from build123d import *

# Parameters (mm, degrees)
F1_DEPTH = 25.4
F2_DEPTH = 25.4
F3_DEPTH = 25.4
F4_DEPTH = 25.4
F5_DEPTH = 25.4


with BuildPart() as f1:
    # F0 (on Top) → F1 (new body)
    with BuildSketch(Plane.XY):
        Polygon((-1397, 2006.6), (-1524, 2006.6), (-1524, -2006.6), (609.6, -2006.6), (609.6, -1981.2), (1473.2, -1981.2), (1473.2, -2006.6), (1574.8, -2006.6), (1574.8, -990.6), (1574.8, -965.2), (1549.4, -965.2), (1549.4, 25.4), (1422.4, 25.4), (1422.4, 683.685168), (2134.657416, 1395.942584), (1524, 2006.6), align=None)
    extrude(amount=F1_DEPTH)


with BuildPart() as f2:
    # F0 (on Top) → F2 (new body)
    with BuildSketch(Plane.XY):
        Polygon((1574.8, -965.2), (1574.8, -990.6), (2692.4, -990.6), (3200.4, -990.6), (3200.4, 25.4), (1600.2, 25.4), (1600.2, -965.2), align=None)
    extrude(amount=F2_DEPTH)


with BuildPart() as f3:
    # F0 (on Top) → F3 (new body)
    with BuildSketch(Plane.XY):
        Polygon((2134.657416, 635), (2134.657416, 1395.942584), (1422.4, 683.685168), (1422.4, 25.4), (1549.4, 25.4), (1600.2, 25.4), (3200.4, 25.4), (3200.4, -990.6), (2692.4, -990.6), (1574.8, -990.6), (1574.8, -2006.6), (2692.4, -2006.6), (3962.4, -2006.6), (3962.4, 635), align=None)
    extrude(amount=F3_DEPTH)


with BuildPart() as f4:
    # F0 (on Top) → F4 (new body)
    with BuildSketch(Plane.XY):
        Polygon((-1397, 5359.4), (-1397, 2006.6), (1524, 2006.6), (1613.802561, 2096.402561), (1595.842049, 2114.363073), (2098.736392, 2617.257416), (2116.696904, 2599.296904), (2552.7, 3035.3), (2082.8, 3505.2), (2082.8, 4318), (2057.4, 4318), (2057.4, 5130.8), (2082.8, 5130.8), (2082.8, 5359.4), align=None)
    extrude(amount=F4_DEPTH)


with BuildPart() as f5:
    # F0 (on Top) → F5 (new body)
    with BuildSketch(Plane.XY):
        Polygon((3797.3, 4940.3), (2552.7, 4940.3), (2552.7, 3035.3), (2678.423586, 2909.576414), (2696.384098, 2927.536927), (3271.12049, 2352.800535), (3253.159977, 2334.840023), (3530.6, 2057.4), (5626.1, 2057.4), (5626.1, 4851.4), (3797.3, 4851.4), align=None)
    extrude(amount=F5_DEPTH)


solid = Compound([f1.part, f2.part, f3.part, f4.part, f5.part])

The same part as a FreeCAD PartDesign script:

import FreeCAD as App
import Part
import Sketcher
from FreeCAD import Vector
Q = App.Units.Quantity

doc = App.newDocument("Part")
params = doc.addObject("Spreadsheet::Sheet", "Params")
for row, (alias, value) in enumerate([
    ("sketch1_width", "84 in"),
    ("sketch1_width2", "34 in"),
    ("sketch1_width3", "4 in"),
    ("sketch1_width4", "1 in"),
    ("sketch1_width5", "5 in"),
    ("pad1_length", "1 in"),
    ("sketch2_width", "64 in"),
    ("sketch2_width2", "63 in"),
    ("sketch2_height", "40 in"),
    ("pad2_length", "1 in"),
    ("sketch3_width", "70 in"),
    ("sketch3_width2", "64 in"),
    ("sketch3_width3", "94 in"),
    ("sketch3_height", "40 in"),
    ("sketch3_height2", "104 in"),
    ("pad3_length", "1 in"),
    ("sketch4_width", "115 in"),
    ("sketch4_width2", "1 in"),
    ("sketch4_width3", "137 in"),
    ("sketch4_height", "132 in"),
    ("sketch4_height2", "32 in"),
    ("pad4_length", "1 in"),
    ("sketch5_width", "49 in"),
    ("sketch5_width2", "72 in"),
    ("sketch5_height", "75 in"),
    ("sketch5_height2", "110 in"),
    ("sketch5_length", "7 in"),
    ("pad5_length", "1 in"),
], start=1):
    params.set(f"A{row}", alias)
    params.set(f"B{row}", "=" + value)
    params.setAlias(f"B{row}", alias)

body = doc.addObject("PartDesign::Body", "Body")

# Sketch on XY plane
sketch1 = doc.addObject("Sketcher::SketchObject", "Sketch")
body.addObject(sketch1)
sketch1.AttachmentSupport = (doc.XY_Plane, [""])
sketch1.MapMode = "FlatFace"
sketch1.addGeometry(Part.LineSegment(Vector(-1524, 2007, 0), Vector(-1524, -2007, 0)), False)
sketch1.addGeometry(Part.LineSegment(Vector(-1524, -2007, 0), Vector(610, -2007, 0)), False)
sketch1.addGeometry(Part.LineSegment(Vector(610, -2007, 0), Vector(610, -1981, 0)), False)
sketch1.addGeometry(Part.LineSegment(Vector(610, -1981, 0), Vector(1473, -1981, 0)), False)
sketch1.addGeometry(Part.LineSegment(Vector(1473, -1981, 0), Vector(1473, -2007, 0)), False)
sketch1.addGeometry(Part.LineSegment(Vector(1473, -2007, 0), Vector(1575, -2007, 0)), False)
sketch1.addGeometry(Part.LineSegment(Vector(1575, -2007, 0), Vector(1575, -965, 0)), False)
sketch1.addGeometry(Part.LineSegment(Vector(1575, -965, 0), Vector(1549, -965, 0)), False)
sketch1.addGeometry(Part.LineSegment(Vector(1549, -965, 0), Vector(1549, 25, 0)), False)
sketch1.addGeometry(Part.LineSegment(Vector(1549, 25, 0), Vector(1422, 25, 0)), False)
sketch1.addGeometry(Part.LineSegment(Vector(1422, 25, 0), Vector(1422, 684, 0)), False)
sketch1.addGeometry(Part.LineSegment(Vector(1422, 684, 0), Vector(2135, 1396, 0)), False)
sketch1.addGeometry(Part.LineSegment(Vector(2135, 1396, 0), Vector(1524, 2007, 0)), False)
sketch1.addGeometry(Part.LineSegment(Vector(1524, 2007, 0), Vector(-1524, 2007, 0)), False)
sketch1.addConstraint(Sketcher.Constraint("Coincident", 0, 2, 1, 1))
sketch1.addConstraint(Sketcher.Constraint("Coincident", 1, 2, 2, 1))
sketch1.addConstraint(Sketcher.Constraint("Coincident", 2, 2, 3, 1))
sketch1.addConstraint(Sketcher.Constraint("Coincident", 3, 2, 4, 1))
sketch1.addConstraint(Sketcher.Constraint("Coincident", 4, 2, 5, 1))
sketch1.addConstraint(Sketcher.Constraint("Coincident", 5, 2, 6, 1))
sketch1.addConstraint(Sketcher.Constraint("Coincident", 6, 2, 7, 1))
sketch1.addConstraint(Sketcher.Constraint("Coincident", 7, 2, 8, 1))
sketch1.addConstraint(Sketcher.Constraint("Coincident", 8, 2, 9, 1))
sketch1.addConstraint(Sketcher.Constraint("Coincident", 9, 2, 10, 1))
sketch1.addConstraint(Sketcher.Constraint("Coincident", 10, 2, 11, 1))
sketch1.addConstraint(Sketcher.Constraint("Coincident", 11, 2, 12, 1))
sketch1.addConstraint(Sketcher.Constraint("Coincident", 12, 2, 13, 1))
sketch1.addConstraint(Sketcher.Constraint("Coincident", 13, 2, 0, 1))
sketch1.addConstraint(Sketcher.Constraint("Vertical", 0))
sketch1.addConstraint(Sketcher.Constraint("Horizontal", 1))
sketch1.addConstraint(Sketcher.Constraint("Vertical", 2))
sketch1.addConstraint(Sketcher.Constraint("Horizontal", 3))
sketch1.addConstraint(Sketcher.Constraint("Vertical", 4))
sketch1.addConstraint(Sketcher.Constraint("Horizontal", 5))
sketch1.addConstraint(Sketcher.Constraint("Vertical", 6))
sketch1.addConstraint(Sketcher.Constraint("Horizontal", 7))
sketch1.addConstraint(Sketcher.Constraint("Vertical", 8))
sketch1.addConstraint(Sketcher.Constraint("Horizontal", 9))
sketch1.addConstraint(Sketcher.Constraint("Vertical", 10))
sketch1.addConstraint(Sketcher.Constraint("Horizontal", 13))
sketch1.addConstraint(Sketcher.Constraint("Symmetric", 0, 2, 12, 2, -1, 1))
sketch1.addConstraint(Sketcher.Constraint("Perpendicular", 11, 12))
sketch1.addConstraint(Sketcher.Constraint("Horizontal", 1, 2, 4, 2))
sketch1.addConstraint(Sketcher.Constraint("Equal", 7, 2))
sketch1.addConstraint(Sketcher.Constraint("DistanceX", 1, 1, 1, 2, Q("84 in")))
sketch1.addConstraint(Sketcher.Constraint("DistanceX", 3, 1, 3, 2, Q("34 in")))
sketch1.addConstraint(Sketcher.Constraint("DistanceX", 5, 1, 5, 2, Q("4 in")))
sketch1.addConstraint(Sketcher.Constraint("DistanceX", 7, 2, 7, 1, Q("1 in")))
sketch1.addConstraint(Sketcher.Constraint("DistanceX", 9, 2, 9, 1, Q("5 in")))
sketch1.addConstraint(Sketcher.Constraint("DistanceX", 13, 2, 13, 1, Q("120 in")))
sketch1.addConstraint(Sketcher.Constraint("DistanceY", 0, 2, 0, 1, Q("158 in")))
sketch1.addConstraint(Sketcher.Constraint("DistanceY", 6, 1, 6, 2, Q("41 in")))
sketch1.addConstraint(Sketcher.Constraint("DistanceY", 8, 1, 8, 2, Q("39 in")))
sketch1.addConstraint(Sketcher.Constraint("Distance", 12, Q("34 in")))
sketch1.addConstraint(Sketcher.Constraint("Angle", 11, Q("45 deg")))
sketch1.setExpression("Constraints[30]", "Params.sketch1_width")
sketch1.setExpression("Constraints[31]", "Params.sketch1_width2")
sketch1.setExpression("Constraints[32]", "Params.sketch1_width3")
sketch1.setExpression("Constraints[33]", "Params.sketch1_width4")
sketch1.setExpression("Constraints[34]", "Params.sketch1_width5")
pad1 = doc.addObject("PartDesign::Pad", "Pad")
body.addObject(pad1)
pad1.Profile = sketch1
pad1.setExpression("Length", "Params.pad1_length")
body2 = doc.addObject("PartDesign::Body", "Body001")

# Sketch on XY plane
sketch2 = doc.addObject("Sketcher::SketchObject", "Sketch001")
body2.addObject(sketch2)
sketch2.AttachmentSupport = (doc.getObject("XY_Plane001"), [""])
sketch2.MapMode = "FlatFace"
sketch2.addGeometry(Part.LineSegment(Vector(1575, -965, 0), Vector(1575, -991, 0)), False)
sketch2.addGeometry(Part.LineSegment(Vector(1575, -991, 0), Vector(3200, -991, 0)), False)
sketch2.addGeometry(Part.LineSegment(Vector(3200, -991, 0), Vector(3200, 25, 0)), False)
sketch2.addGeometry(Part.LineSegment(Vector(3200, 25, 0), Vector(1600, 25, 0)), False)
sketch2.addGeometry(Part.LineSegment(Vector(1600, 25, 0), Vector(1600, -965, 0)), False)
sketch2.addGeometry(Part.LineSegment(Vector(1600, -965, 0), Vector(1575, -965, 0)), False)
sketch2.addConstraint(Sketcher.Constraint("Coincident", 0, 2, 1, 1))
sketch2.addConstraint(Sketcher.Constraint("Coincident", 1, 2, 2, 1))
sketch2.addConstraint(Sketcher.Constraint("Coincident", 2, 2, 3, 1))
sketch2.addConstraint(Sketcher.Constraint("Coincident", 3, 2, 4, 1))
sketch2.addConstraint(Sketcher.Constraint("Coincident", 4, 2, 5, 1))
sketch2.addConstraint(Sketcher.Constraint("Coincident", 5, 2, 0, 1))
sketch2.addConstraint(Sketcher.Constraint("Vertical", 0))
sketch2.addConstraint(Sketcher.Constraint("Horizontal", 1))
sketch2.addConstraint(Sketcher.Constraint("Vertical", 2))
sketch2.addConstraint(Sketcher.Constraint("Horizontal", 3))
sketch2.addConstraint(Sketcher.Constraint("Vertical", 4))
sketch2.addConstraint(Sketcher.Constraint("Horizontal", 5))
sketch2.addConstraint(Sketcher.Constraint("Equal", 5, 0))
sketch2.addConstraint(Sketcher.Constraint("DistanceX", 1, 1, 1, 2, Q("64 in")))
sketch2.addConstraint(Sketcher.Constraint("DistanceX", 3, 2, 3, 1, Q("63 in")))
sketch2.addConstraint(Sketcher.Constraint("DistanceY", 2, 1, 2, 2, Q("40 in")))
sketch2.addConstraint(Sketcher.Constraint("DistanceX", -1, 1, 0, 2, Q("62 in")))
sketch2.addConstraint(Sketcher.Constraint("DistanceY", 0, 2, -1, 1, Q("39 in")))
sketch2.setExpression("Constraints[13]", "Params.sketch2_width")
sketch2.setExpression("Constraints[14]", "Params.sketch2_width2")
sketch2.setExpression("Constraints[15]", "Params.sketch2_height")
pad2 = doc.addObject("PartDesign::Pad", "Pad001")
body2.addObject(pad2)
pad2.Profile = sketch2
pad2.setExpression("Length", "Params.pad2_length")
body3 = doc.addObject("PartDesign::Body", "Body002")

# Sketch on XY plane
sketch3 = doc.addObject("Sketcher::SketchObject", "Sketch002")
body3.addObject(sketch3)
sketch3.AttachmentSupport = (doc.getObject("XY_Plane002"), [""])
sketch3.MapMode = "FlatFace"
sketch3.addGeometry(Part.LineSegment(Vector(2135, 635, 0), Vector(2135, 1396, 0)), False)
sketch3.addGeometry(Part.LineSegment(Vector(2135, 1396, 0), Vector(1422, 684, 0)), False)
sketch3.addGeometry(Part.LineSegment(Vector(1422, 684, 0), Vector(1422, 25, 0)), False)
sketch3.addGeometry(Part.LineSegment(Vector(1422, 25, 0), Vector(3200, 25, 0)), False)
sketch3.addGeometry(Part.LineSegment(Vector(3200, 25, 0), Vector(3200, -991, 0)), False)
sketch3.addGeometry(Part.LineSegment(Vector(3200, -991, 0), Vector(1575, -991, 0)), False)
sketch3.addGeometry(Part.LineSegment(Vector(1575, -991, 0), Vector(1575, -2007, 0)), False)
sketch3.addGeometry(Part.LineSegment(Vector(1575, -2007, 0), Vector(3962, -2007, 0)), False)
sketch3.addGeometry(Part.LineSegment(Vector(3962, -2007, 0), Vector(3962, 635, 0)), False)
sketch3.addGeometry(Part.LineSegment(Vector(3962, 635, 0), Vector(2135, 635, 0)), False)
sketch3.addConstraint(Sketcher.Constraint("Coincident", 0, 2, 1, 1))
sketch3.addConstraint(Sketcher.Constraint("Coincident", 1, 2, 2, 1))
sketch3.addConstraint(Sketcher.Constraint("Coincident", 2, 2, 3, 1))
sketch3.addConstraint(Sketcher.Constraint("Coincident", 3, 2, 4, 1))
sketch3.addConstraint(Sketcher.Constraint("Coincident", 4, 2, 5, 1))
sketch3.addConstraint(Sketcher.Constraint("Coincident", 5, 2, 6, 1))
sketch3.addConstraint(Sketcher.Constraint("Coincident", 6, 2, 7, 1))
sketch3.addConstraint(Sketcher.Constraint("Coincident", 7, 2, 8, 1))
sketch3.addConstraint(Sketcher.Constraint("Coincident", 8, 2, 9, 1))
sketch3.addConstraint(Sketcher.Constraint("Coincident", 9, 2, 0, 1))
sketch3.addConstraint(Sketcher.Constraint("Vertical", 0))
sketch3.addConstraint(Sketcher.Constraint("Vertical", 2))
sketch3.addConstraint(Sketcher.Constraint("Horizontal", 3))
sketch3.addConstraint(Sketcher.Constraint("Vertical", 4))
sketch3.addConstraint(Sketcher.Constraint("Horizontal", 5))
sketch3.addConstraint(Sketcher.Constraint("Vertical", 6))
sketch3.addConstraint(Sketcher.Constraint("Horizontal", 7))
sketch3.addConstraint(Sketcher.Constraint("Vertical", 8))
sketch3.addConstraint(Sketcher.Constraint("Horizontal", 9))
sketch3.addConstraint(Sketcher.Constraint("Equal", 4, 6))
sketch3.addConstraint(Sketcher.Constraint("DistanceX", 3, 1, 3, 2, Q("70 in")))
sketch3.addConstraint(Sketcher.Constraint("DistanceX", 5, 2, 5, 1, Q("64 in")))
sketch3.addConstraint(Sketcher.Constraint("DistanceX", 7, 1, 7, 2, Q("94 in")))
sketch3.addConstraint(Sketcher.Constraint("DistanceY", 4, 2, 4, 1, Q("40 in")))
sketch3.addConstraint(Sketcher.Constraint("DistanceY", 8, 1, 8, 2, Q("104 in")))
sketch3.addConstraint(Sketcher.Constraint("DistanceX", -1, 1, 1, 2, Q("56 in")))
sketch3.addConstraint(Sketcher.Constraint("DistanceY", -1, 1, 2, 2, Q("1 in")))
sketch3.addConstraint(Sketcher.Constraint("Angle", 1, Q("-135 deg")))
sketch3.addConstraint(Sketcher.Constraint("DistanceY", 2, 2, 2, 1, 658.285168))
sketch3.addConstraint(Sketcher.Constraint("DistanceX", 9, 2, 9, 1, 1827.742584))
sketch3.setExpression("Constraints[20]", "Params.sketch3_width")
sketch3.setExpression("Constraints[21]", "Params.sketch3_width2")
sketch3.setExpression("Constraints[22]", "Params.sketch3_width3")
sketch3.setExpression("Constraints[23]", "Params.sketch3_height")
sketch3.setExpression("Constraints[24]", "Params.sketch3_height2")
pad3 = doc.addObject("PartDesign::Pad", "Pad002")
body3.addObject(pad3)
pad3.Profile = sketch3
pad3.setExpression("Length", "Params.pad3_length")
body4 = doc.addObject("PartDesign::Body", "Body003")

# Sketch on XY plane
sketch4 = doc.addObject("Sketcher::SketchObject", "Sketch003")
body4.addObject(sketch4)
sketch4.AttachmentSupport = (doc.getObject("XY_Plane003"), [""])
sketch4.MapMode = "FlatFace"
sketch4.addGeometry(Part.LineSegment(Vector(-1397, 5359, 0), Vector(-1397, 2007, 0)), False)
sketch4.addGeometry(Part.LineSegment(Vector(-1397, 2007, 0), Vector(1524, 2007, 0)), False)
sketch4.addGeometry(Part.LineSegment(Vector(1524, 2007, 0), Vector(1614, 2096, 0)), False)
sketch4.addGeometry(Part.LineSegment(Vector(1614, 2096, 0), Vector(1596, 2114, 0)), False)
sketch4.addGeometry(Part.LineSegment(Vector(1596, 2114, 0), Vector(2099, 2617, 0)), False)
sketch4.addGeometry(Part.LineSegment(Vector(2099, 2617, 0), Vector(2117, 2599, 0)), False)
sketch4.addGeometry(Part.LineSegment(Vector(2117, 2599, 0), Vector(2553, 3035, 0)), False)
sketch4.addGeometry(Part.LineSegment(Vector(2553, 3035, 0), Vector(2083, 3505, 0)), False)
sketch4.addGeometry(Part.LineSegment(Vector(2083, 3505, 0), Vector(2083, 4318, 0)), False)
sketch4.addGeometry(Part.LineSegment(Vector(2083, 4318, 0), Vector(2057, 4318, 0)), False)
sketch4.addGeometry(Part.LineSegment(Vector(2057, 4318, 0), Vector(2057, 5131, 0)), False)
sketch4.addGeometry(Part.LineSegment(Vector(2057, 5131, 0), Vector(2083, 5131, 0)), False)
sketch4.addGeometry(Part.LineSegment(Vector(2083, 5131, 0), Vector(2083, 5359, 0)), False)
sketch4.addGeometry(Part.LineSegment(Vector(2083, 5359, 0), Vector(-1397, 5359, 0)), False)
sketch4.addConstraint(Sketcher.Constraint("Coincident", 0, 2, 1, 1))
sketch4.addConstraint(Sketcher.Constraint("Coincident", 1, 2, 2, 1))
sketch4.addConstraint(Sketcher.Constraint("Coincident", 2, 2, 3, 1))
sketch4.addConstraint(Sketcher.Constraint("Coincident", 3, 2, 4, 1))
sketch4.addConstraint(Sketcher.Constraint("Coincident", 4, 2, 5, 1))
sketch4.addConstraint(Sketcher.Constraint("Coincident", 5, 2, 6, 1))
sketch4.addConstraint(Sketcher.Constraint("Coincident", 6, 2, 7, 1))
sketch4.addConstraint(Sketcher.Constraint("Coincident", 7, 2, 8, 1))
sketch4.addConstraint(Sketcher.Constraint("Coincident", 8, 2, 9, 1))
sketch4.addConstraint(Sketcher.Constraint("Coincident", 9, 2, 10, 1))
sketch4.addConstraint(Sketcher.Constraint("Coincident", 10, 2, 11, 1))
sketch4.addConstraint(Sketcher.Constraint("Coincident", 11, 2, 12, 1))
sketch4.addConstraint(Sketcher.Constraint("Coincident", 12, 2, 13, 1))
sketch4.addConstraint(Sketcher.Constraint("Coincident", 13, 2, 0, 1))
sketch4.addConstraint(Sketcher.Constraint("Vertical", 0))
sketch4.addConstraint(Sketcher.Constraint("Horizontal", 1))
sketch4.addConstraint(Sketcher.Constraint("Vertical", 8))
sketch4.addConstraint(Sketcher.Constraint("Horizontal", 9))
sketch4.addConstraint(Sketcher.Constraint("Vertical", 10))
sketch4.addConstraint(Sketcher.Constraint("Horizontal", 11))
sketch4.addConstraint(Sketcher.Constraint("Vertical", 12))
sketch4.addConstraint(Sketcher.Constraint("Horizontal", 13))
sketch4.addConstraint(Sketcher.Constraint("Perpendicular", 2, 3))
sketch4.addConstraint(Sketcher.Constraint("Perpendicular", 3, 4))
sketch4.addConstraint(Sketcher.Constraint("Perpendicular", 4, 5))
sketch4.addConstraint(Sketcher.Constraint("Perpendicular", 5, 6))
sketch4.addConstraint(Sketcher.Constraint("Perpendicular", 6, 7))
sketch4.addConstraint(Sketcher.Constraint("Vertical", 8, 2, 11, 2))
sketch4.addConstraint(Sketcher.Constraint("Equal", 8, 10))
sketch4.addConstraint(Sketcher.Constraint("Equal", 3, 5))
sketch4.addConstraint(Sketcher.Constraint("DistanceX", 1, 1, 1, 2, Q("115 in")))
sketch4.addConstraint(Sketcher.Constraint("DistanceX", 9, 2, 9, 1, Q("1 in")))
sketch4.addConstraint(Sketcher.Constraint("DistanceX", 13, 2, 13, 1, Q("137 in")))
sketch4.addConstraint(Sketcher.Constraint("DistanceY", 0, 2, 0, 1, Q("132 in")))
sketch4.addConstraint(Sketcher.Constraint("DistanceY", 8, 1, 8, 2, Q("32 in")))
sketch4.addConstraint(Sketcher.Constraint("DistanceY", 12, 1, 12, 2, Q("9 in")))
sketch4.addConstraint(Sketcher.Constraint("Distance", 2, Q("5 in")))
sketch4.addConstraint(Sketcher.Constraint("Distance", 3, Q("1 in")))
sketch4.addConstraint(Sketcher.Constraint("Distance", 4, Q("28 in")))
sketch4.addConstraint(Sketcher.Constraint("DistanceX", 0, 2, -1, 1, Q("55 in")))
sketch4.addConstraint(Sketcher.Constraint("DistanceY", -1, 1, 0, 2, Q("79 in")))
sketch4.addConstraint(Sketcher.Constraint("Angle", 2, Q("45 deg")))
sketch4.setExpression("Constraints[30]", "Params.sketch4_width")
sketch4.setExpression("Constraints[31]", "Params.sketch4_width2")
sketch4.setExpression("Constraints[32]", "Params.sketch4_width3")
sketch4.setExpression("Constraints[33]", "Params.sketch4_height")
sketch4.setExpression("Constraints[34]", "Params.sketch4_height2")
pad4 = doc.addObject("PartDesign::Pad", "Pad003")
body4.addObject(pad4)
pad4.Profile = sketch4
pad4.setExpression("Length", "Params.pad4_length")
body5 = doc.addObject("PartDesign::Body", "Body004")

# Sketch on XY plane
sketch5 = doc.addObject("Sketcher::SketchObject", "Sketch004")
body5.addObject(sketch5)
sketch5.AttachmentSupport = (doc.getObject("XY_Plane004"), [""])
sketch5.MapMode = "FlatFace"
sketch5.addGeometry(Part.LineSegment(Vector(3797, 4940, 0), Vector(2553, 4940, 0)), False)
sketch5.addGeometry(Part.LineSegment(Vector(2553, 4940, 0), Vector(2553, 3035, 0)), False)
sketch5.addGeometry(Part.LineSegment(Vector(2553, 3035, 0), Vector(2678, 2910, 0)), False)
sketch5.addGeometry(Part.LineSegment(Vector(2678, 2910, 0), Vector(2696, 2928, 0)), False)
sketch5.addGeometry(Part.LineSegment(Vector(2696, 2928, 0), Vector(3271, 2353, 0)), False)
sketch5.addGeometry(Part.LineSegment(Vector(3271, 2353, 0), Vector(3253, 2335, 0)), False)
sketch5.addGeometry(Part.LineSegment(Vector(3253, 2335, 0), Vector(3531, 2057, 0)), False)
sketch5.addGeometry(Part.LineSegment(Vector(3531, 2057, 0), Vector(5626, 2057, 0)), False)
sketch5.addGeometry(Part.LineSegment(Vector(5626, 2057, 0), Vector(5626, 4851, 0)), False)
sketch5.addGeometry(Part.LineSegment(Vector(5626, 4851, 0), Vector(3797, 4851, 0)), False)
sketch5.addGeometry(Part.LineSegment(Vector(3797, 4851, 0), Vector(3797, 4940, 0)), False)
sketch5.addConstraint(Sketcher.Constraint("Coincident", 0, 2, 1, 1))
sketch5.addConstraint(Sketcher.Constraint("Coincident", 1, 2, 2, 1))
sketch5.addConstraint(Sketcher.Constraint("Coincident", 2, 2, 3, 1))
sketch5.addConstraint(Sketcher.Constraint("Coincident", 3, 2, 4, 1))
sketch5.addConstraint(Sketcher.Constraint("Coincident", 4, 2, 5, 1))
sketch5.addConstraint(Sketcher.Constraint("Coincident", 5, 2, 6, 1))
sketch5.addConstraint(Sketcher.Constraint("Coincident", 6, 2, 7, 1))
sketch5.addConstraint(Sketcher.Constraint("Coincident", 7, 2, 8, 1))
sketch5.addConstraint(Sketcher.Constraint("Coincident", 8, 2, 9, 1))
sketch5.addConstraint(Sketcher.Constraint("Coincident", 9, 2, 10, 1))
sketch5.addConstraint(Sketcher.Constraint("Coincident", 10, 2, 0, 1))
sketch5.addConstraint(Sketcher.Constraint("Horizontal", 0))
sketch5.addConstraint(Sketcher.Constraint("Vertical", 1))
sketch5.addConstraint(Sketcher.Constraint("Horizontal", 7))
sketch5.addConstraint(Sketcher.Constraint("Vertical", 8))
sketch5.addConstraint(Sketcher.Constraint("Horizontal", 9))
sketch5.addConstraint(Sketcher.Constraint("Vertical", 10))
sketch5.addConstraint(Sketcher.Constraint("Perpendicular", 2, 3))
sketch5.addConstraint(Sketcher.Constraint("Perpendicular", 3, 4))
sketch5.addConstraint(Sketcher.Constraint("Perpendicular", 4, 5))
sketch5.addConstraint(Sketcher.Constraint("Perpendicular", 5, 6))
sketch5.addConstraint(Sketcher.Constraint("Equal", 3, 5))
sketch5.addConstraint(Sketcher.Constraint("DistanceX", 0, 2, 0, 1, Q("49 in")))
sketch5.addConstraint(Sketcher.Constraint("DistanceX", 9, 2, 9, 1, Q("72 in")))
sketch5.addConstraint(Sketcher.Constraint("DistanceY", 1, 2, 1, 1, Q("75 in")))
sketch5.addConstraint(Sketcher.Constraint("DistanceY", 8, 1, 8, 2, Q("110 in")))
sketch5.addConstraint(Sketcher.Constraint("Distance", 2, Q("7 in")))
sketch5.addConstraint(Sketcher.Constraint("Distance", 3, Q("1 in")))
sketch5.addConstraint(Sketcher.Constraint("Distance", 4, Q("32 in")))
sketch5.addConstraint(Sketcher.Constraint("DistanceX", 7, 1, 7, 2, Q("82.5 in")))
sketch5.addConstraint(Sketcher.Constraint("DistanceY", 10, 1, 10, 2, Q("3.5 in")))
sketch5.addConstraint(Sketcher.Constraint("DistanceX", -1, 1, 6, 2, Q("139 in")))
sketch5.addConstraint(Sketcher.Constraint("DistanceY", -1, 1, 6, 2, Q("81 in")))
sketch5.setExpression("Constraints[22]", "Params.sketch5_width")
sketch5.setExpression("Constraints[23]", "Params.sketch5_width2")
sketch5.setExpression("Constraints[24]", "Params.sketch5_height")
sketch5.setExpression("Constraints[25]", "Params.sketch5_height2")
sketch5.setExpression("Constraints[26]", "Params.sketch5_length")
pad5 = doc.addObject("PartDesign::Pad", "Pad004")
body5.addObject(pad5)
pad5.Profile = sketch5
pad5.setExpression("Length", "Params.pad5_length")

doc.recompute()
